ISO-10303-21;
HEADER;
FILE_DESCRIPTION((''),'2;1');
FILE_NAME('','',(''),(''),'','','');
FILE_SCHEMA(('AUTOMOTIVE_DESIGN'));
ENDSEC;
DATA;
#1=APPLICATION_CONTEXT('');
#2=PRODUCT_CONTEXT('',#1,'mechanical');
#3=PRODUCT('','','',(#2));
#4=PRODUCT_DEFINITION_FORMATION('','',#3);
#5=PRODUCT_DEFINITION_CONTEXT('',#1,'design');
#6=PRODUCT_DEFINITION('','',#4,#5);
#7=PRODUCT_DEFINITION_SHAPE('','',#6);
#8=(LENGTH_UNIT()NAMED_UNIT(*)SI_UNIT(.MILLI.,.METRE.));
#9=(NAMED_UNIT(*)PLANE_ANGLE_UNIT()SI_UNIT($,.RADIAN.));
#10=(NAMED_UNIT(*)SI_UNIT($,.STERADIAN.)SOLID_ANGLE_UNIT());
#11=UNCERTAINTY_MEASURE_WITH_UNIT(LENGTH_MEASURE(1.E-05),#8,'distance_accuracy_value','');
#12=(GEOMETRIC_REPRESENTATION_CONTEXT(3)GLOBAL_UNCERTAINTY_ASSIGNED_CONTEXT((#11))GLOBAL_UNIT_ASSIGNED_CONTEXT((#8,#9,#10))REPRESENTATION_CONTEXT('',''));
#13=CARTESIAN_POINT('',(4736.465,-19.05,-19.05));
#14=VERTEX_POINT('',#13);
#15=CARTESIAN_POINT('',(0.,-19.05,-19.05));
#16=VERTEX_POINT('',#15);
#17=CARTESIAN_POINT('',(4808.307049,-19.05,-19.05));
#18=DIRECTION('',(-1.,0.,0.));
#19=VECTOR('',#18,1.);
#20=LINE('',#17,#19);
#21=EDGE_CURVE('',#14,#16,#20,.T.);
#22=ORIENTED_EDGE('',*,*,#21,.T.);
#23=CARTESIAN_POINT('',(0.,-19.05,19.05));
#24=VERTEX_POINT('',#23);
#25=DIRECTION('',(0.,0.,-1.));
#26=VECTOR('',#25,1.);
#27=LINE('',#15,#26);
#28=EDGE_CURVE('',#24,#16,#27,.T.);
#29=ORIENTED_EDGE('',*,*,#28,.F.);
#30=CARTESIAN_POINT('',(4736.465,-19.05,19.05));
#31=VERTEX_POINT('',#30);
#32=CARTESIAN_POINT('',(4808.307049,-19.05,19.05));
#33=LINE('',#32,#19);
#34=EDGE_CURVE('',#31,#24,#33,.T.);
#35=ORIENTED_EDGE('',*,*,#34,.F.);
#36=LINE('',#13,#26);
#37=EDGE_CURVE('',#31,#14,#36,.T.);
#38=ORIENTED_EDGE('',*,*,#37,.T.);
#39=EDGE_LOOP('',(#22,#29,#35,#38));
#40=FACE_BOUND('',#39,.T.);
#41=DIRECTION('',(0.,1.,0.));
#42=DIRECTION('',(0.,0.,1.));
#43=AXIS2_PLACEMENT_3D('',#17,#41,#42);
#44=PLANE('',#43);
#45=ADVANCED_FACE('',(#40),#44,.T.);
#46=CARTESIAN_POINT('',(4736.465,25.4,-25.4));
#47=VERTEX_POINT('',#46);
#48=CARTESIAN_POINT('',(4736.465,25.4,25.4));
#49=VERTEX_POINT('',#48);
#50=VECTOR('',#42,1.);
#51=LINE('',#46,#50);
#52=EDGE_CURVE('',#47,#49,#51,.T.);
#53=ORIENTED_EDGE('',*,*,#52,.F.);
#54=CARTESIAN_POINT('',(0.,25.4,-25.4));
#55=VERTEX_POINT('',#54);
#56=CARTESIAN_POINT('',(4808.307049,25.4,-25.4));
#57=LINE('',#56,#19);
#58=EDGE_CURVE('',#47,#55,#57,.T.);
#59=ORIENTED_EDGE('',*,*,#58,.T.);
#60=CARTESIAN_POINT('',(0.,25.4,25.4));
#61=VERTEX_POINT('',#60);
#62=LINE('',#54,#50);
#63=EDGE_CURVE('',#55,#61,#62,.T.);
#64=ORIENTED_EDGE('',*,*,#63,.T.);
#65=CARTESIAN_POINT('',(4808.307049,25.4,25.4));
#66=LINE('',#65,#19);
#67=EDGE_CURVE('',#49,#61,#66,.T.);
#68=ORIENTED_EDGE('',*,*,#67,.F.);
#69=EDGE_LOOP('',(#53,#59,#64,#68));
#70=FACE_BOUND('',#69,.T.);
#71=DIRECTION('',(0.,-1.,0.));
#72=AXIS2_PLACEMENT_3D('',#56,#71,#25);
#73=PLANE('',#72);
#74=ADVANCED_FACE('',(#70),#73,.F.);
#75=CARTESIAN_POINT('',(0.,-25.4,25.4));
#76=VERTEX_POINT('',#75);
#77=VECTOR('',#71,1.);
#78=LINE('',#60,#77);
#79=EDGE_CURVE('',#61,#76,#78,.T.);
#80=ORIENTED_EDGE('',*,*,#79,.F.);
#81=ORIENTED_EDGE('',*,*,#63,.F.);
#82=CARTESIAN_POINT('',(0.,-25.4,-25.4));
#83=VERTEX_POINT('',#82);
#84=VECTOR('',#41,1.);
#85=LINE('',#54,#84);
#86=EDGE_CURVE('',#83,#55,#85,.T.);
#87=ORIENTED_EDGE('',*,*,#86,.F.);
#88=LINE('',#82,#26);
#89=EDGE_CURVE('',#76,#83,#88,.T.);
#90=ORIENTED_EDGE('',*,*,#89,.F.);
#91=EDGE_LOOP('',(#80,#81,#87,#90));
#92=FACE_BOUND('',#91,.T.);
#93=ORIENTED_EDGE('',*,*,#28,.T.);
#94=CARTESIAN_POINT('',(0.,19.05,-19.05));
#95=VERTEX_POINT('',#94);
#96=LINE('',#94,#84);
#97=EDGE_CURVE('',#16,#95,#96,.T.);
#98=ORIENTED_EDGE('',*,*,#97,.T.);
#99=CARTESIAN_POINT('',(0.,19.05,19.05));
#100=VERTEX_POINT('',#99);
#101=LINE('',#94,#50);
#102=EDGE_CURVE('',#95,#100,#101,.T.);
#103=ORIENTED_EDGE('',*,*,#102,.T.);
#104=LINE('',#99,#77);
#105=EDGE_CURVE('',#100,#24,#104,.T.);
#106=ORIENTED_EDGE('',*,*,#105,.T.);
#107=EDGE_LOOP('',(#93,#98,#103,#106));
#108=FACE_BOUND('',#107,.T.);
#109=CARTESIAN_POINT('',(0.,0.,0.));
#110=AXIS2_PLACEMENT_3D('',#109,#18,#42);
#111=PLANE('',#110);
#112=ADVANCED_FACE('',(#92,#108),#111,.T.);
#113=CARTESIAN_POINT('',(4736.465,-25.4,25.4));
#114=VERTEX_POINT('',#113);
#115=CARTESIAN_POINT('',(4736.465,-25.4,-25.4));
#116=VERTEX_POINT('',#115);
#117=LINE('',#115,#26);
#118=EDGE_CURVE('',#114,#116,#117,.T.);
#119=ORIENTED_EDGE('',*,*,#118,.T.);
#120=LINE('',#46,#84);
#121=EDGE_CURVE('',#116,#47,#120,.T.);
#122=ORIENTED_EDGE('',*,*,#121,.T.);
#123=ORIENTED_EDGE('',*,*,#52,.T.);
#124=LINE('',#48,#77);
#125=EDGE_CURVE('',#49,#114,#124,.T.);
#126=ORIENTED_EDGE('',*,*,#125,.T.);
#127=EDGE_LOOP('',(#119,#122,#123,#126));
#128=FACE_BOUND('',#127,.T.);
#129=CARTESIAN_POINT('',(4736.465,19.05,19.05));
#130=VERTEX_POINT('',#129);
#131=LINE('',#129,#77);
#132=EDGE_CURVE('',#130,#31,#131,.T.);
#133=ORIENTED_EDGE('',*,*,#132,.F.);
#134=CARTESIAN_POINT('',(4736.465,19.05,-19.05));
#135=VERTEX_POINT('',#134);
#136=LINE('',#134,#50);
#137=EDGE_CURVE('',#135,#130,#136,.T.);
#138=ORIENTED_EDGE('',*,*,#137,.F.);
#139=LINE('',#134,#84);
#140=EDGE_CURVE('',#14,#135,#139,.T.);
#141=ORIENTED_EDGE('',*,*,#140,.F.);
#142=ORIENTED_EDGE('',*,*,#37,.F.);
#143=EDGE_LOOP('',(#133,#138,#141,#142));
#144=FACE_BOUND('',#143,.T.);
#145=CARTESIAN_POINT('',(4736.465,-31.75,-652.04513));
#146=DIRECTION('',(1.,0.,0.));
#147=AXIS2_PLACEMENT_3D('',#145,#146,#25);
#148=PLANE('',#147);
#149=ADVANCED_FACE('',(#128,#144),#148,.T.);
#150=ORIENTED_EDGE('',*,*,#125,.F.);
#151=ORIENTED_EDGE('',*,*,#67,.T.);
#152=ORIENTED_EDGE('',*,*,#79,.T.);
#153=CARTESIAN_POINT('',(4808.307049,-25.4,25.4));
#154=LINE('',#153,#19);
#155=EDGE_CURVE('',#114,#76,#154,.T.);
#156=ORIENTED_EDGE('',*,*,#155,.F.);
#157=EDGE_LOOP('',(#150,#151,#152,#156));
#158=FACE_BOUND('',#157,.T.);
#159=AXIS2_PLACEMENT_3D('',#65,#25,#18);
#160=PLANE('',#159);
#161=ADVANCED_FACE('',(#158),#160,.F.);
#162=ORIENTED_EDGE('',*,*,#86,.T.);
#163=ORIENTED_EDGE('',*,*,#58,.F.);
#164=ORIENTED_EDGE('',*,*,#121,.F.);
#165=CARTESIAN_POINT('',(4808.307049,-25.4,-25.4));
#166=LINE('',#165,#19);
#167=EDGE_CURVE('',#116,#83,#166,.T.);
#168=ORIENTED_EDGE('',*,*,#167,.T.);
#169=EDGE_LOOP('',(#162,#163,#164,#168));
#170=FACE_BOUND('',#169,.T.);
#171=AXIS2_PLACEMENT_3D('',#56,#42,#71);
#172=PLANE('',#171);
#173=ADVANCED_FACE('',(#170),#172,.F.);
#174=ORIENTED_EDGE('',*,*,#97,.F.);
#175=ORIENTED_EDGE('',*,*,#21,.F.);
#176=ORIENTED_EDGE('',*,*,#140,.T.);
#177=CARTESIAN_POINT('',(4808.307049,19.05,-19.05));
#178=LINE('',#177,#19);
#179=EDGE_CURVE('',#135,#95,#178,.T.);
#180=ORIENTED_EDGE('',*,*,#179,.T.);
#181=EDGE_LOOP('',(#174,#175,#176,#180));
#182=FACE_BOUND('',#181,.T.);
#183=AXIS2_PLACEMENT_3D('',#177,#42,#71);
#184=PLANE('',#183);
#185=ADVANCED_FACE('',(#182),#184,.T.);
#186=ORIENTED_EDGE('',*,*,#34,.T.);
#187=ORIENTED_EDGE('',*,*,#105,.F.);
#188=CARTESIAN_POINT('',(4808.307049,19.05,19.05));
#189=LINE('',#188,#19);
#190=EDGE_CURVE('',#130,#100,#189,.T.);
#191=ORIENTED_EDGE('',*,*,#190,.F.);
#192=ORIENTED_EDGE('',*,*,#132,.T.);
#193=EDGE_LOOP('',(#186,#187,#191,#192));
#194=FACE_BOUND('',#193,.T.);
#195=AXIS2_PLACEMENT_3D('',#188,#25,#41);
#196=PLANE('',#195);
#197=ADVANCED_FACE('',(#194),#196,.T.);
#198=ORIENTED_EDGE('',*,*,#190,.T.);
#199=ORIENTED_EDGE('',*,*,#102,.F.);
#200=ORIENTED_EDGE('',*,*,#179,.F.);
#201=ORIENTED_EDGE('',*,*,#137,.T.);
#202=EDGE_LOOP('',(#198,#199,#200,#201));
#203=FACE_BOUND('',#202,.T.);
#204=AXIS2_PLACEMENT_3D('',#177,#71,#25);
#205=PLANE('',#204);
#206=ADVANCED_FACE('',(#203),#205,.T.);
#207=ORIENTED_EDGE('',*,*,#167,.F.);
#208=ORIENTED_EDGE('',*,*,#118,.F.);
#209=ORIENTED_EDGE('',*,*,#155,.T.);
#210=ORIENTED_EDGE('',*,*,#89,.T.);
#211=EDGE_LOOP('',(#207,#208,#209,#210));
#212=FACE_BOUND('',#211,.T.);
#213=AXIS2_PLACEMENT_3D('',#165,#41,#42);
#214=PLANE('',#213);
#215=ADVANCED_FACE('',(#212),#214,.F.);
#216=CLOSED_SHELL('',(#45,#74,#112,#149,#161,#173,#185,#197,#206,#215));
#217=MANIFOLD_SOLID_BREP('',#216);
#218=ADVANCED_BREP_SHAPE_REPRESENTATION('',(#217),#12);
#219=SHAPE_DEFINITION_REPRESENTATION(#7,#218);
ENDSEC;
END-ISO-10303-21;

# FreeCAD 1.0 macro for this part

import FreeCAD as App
import Part
import Sketcher
Q = App.Units.Quantity


def add_polygon(sketch, points):
    """Adds a closed chain of lines whose ends are joined by coincident constraints."""
    first, n = sketch.GeometryCount, len(points)
    for a, b in zip(points, points[1:] + points[:1]):
        sketch.addGeometry(Part.LineSegment(App.Vector(*a, 0), App.Vector(*b, 0)), False)
    for i in range(n):
        sketch.addConstraint(Sketcher.Constraint("Coincident", first + i, 2, first + (i + 1) % n, 1))

doc = App.newDocument("Part")
body = doc.addObject("PartDesign::Body", "Body")

# Sketch on YZ plane
sketch1 = body.newObject("Sketcher::SketchObject", "Sketch")
sketch1.AttachmentSupport = (doc.getObject("YZ_Plane"), [""])
sketch1.MapMode = "FlatFace"
add_polygon(sketch1, [(25, 25), (-25, 25), (-25, -25), (25, -25)])  # lines 0-3
add_polygon(sketch1, [(-19, -19), (-19, 19), (19, 19), (19, -19)])  # lines 4-7
sketch1.addConstraint([
    Sketcher.Constraint("Horizontal", 0),
    Sketcher.Constraint("Vertical", 1),
    Sketcher.Constraint("Horizontal", 2),
    Sketcher.Constraint("Vertical", 3),
    Sketcher.Constraint("Vertical", 4),
    Sketcher.Constraint("Horizontal", 5),
    Sketcher.Constraint("Vertical", 6),
    Sketcher.Constraint("Horizontal", 7),
    Sketcher.Constraint("Symmetric", 0, 2, 2, 2, -1, 1),
    Sketcher.Constraint("Symmetric", 4, 2, 6, 2, -1, 1),
    Sketcher.Constraint("Equal", 2, 1),
    Sketcher.Constraint("Equal", 7, 4),
    Sketcher.Constraint("DistanceX", 0, 2, 0, 1, Q("2 in")),
    Sketcher.Constraint("DistanceX", 5, 1, 5, 2, Q("1.5 in")),
])
pad1 = body.newObject("PartDesign::Pad", "Pad")
pad1.Profile = sketch1
pad1.Length = Q("186.475 in")

doc.recompute()
